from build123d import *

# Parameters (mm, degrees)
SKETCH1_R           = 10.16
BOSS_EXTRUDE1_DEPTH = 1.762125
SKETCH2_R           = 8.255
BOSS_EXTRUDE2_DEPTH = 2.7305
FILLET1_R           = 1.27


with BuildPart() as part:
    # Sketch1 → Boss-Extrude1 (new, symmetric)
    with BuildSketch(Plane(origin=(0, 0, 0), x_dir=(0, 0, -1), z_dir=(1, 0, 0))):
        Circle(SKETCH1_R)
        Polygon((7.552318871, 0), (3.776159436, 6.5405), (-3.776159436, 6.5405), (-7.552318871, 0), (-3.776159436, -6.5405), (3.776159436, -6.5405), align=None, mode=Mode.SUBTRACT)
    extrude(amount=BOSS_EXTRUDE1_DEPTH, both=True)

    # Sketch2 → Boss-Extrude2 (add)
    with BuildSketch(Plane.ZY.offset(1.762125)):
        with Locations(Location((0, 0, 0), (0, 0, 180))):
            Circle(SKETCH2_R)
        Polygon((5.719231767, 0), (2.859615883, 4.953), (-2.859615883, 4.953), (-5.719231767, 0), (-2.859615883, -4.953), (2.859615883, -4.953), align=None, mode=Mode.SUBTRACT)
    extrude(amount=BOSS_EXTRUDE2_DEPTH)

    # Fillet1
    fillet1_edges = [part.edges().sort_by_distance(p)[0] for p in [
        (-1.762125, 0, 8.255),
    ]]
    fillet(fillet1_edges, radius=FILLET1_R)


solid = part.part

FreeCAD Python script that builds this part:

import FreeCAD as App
import Part
import Sketcher
Q = App.Units.Quantity


def edges_at(feature, points):
    """Names of the edges that pass closest to the given points."""
    edges = feature.Shape.Edges
    near = lambda p: min(range(len(edges)), key=lambda i: edges[i].distToShape(Part.Vertex(*p))[0])
    return sorted({f"Edge{near(p) + 1}" for p in points})

doc = App.newDocument("Part")
body = doc.addObject("PartDesign::Body", "Body")

# Sketch on YZ plane
sketch1 = body.newObject("Sketcher::SketchObject", "Sketch")
sketch1.AttachmentSupport = (doc.getObject("YZ_Plane"), [""])
sketch1.MapMode = "FlatFace"
sketch1.addGeometry([
    Part.Circle(App.Vector(0, 0, 0), App.Vector(0, 0, 1), 10),  # 0
    Part.LineSegment(App.Vector(7, -4, 0), App.Vector(0, -8, 0)),  # 1
    Part.LineSegment(App.Vector(0, -8, 0), App.Vector(-7, -4, 0)),  # 2
    Part.LineSegment(App.Vector(-7, -4, 0), App.Vector(-7, 4, 0)),  # 3
    Part.LineSegment(App.Vector(-7, 4, 0), App.Vector(0, 8, 0)),  # 4
    Part.LineSegment(App.Vector(0, 8, 0), App.Vector(7, 4, 0)),  # 5
    Part.LineSegment(App.Vector(7, 4, 0), App.Vector(7, -4, 0)),  # 6
], False)
sketch1.addConstraint([
    Sketcher.Constraint("Coincident", 1, 2, 2, 1),
    Sketcher.Constraint("Coincident", 2, 2, 3, 1),
    Sketcher.Constraint("Coincident", 3, 2, 4, 1),
    Sketcher.Constraint("Coincident", 4, 2, 5, 1),
    Sketcher.Constraint("Coincident", 5, 2, 6, 1),
    Sketcher.Constraint("Coincident", 6, 2, 1, 1),
    Sketcher.Constraint("Vertical", 3),
    Sketcher.Constraint("Vertical", 6),
    Sketcher.Constraint("Coincident", 0, 3, -1, 1),
    Sketcher.Constraint("Symmetric", 1, 2, 4, 2, -1, 1),
    Sketcher.Constraint("Symmetric", 2, 2, 5, 2, -1, 1),
    Sketcher.Constraint("PointOnObject", 1, 2, -2),
    Sketcher.Constraint("Parallel", 1, 4),
    Sketcher.Constraint("Horizontal", 3, 2, 5, 2),
    Sketcher.Constraint("Diameter", 0, Q("0.8 in")),
    Sketcher.Constraint("Angle", 1, Q("-150 deg")),
    Sketcher.Constraint("DistanceX", 3, 2, 5, 2, Q("0.515 in")),
    Sketcher.Constraint("DistanceY", 3, 1, 3, 2, Q("7.552319 mm")),
])
pad1 = body.newObject("PartDesign::Pad", "Pad")
pad1.Profile = sketch1
pad1.Length = 3.52425
pad1.Midplane = True

# Sketch on YZ plane
sketch2 = body.newObject("Sketcher::SketchObject", "Sketch001")
sketch2.AttachmentSupport = (doc.getObject("YZ_Plane"), [""])
sketch2.MapMode = "FlatFace"
sketch2.AttachmentOffset = App.Placement(App.Vector(0, 0, -1.762125), App.Rotation())
sketch2.addGeometry([
    Part.Circle(App.Vector(0, 0, 0), App.Vector(0, 0, 1), 8),  # 0
    Part.LineSegment(App.Vector(5, 3, 0), App.Vector(0, 6, 0)),  # 1
    Part.LineSegment(App.Vector(0, 6, 0), App.Vector(-5, 3, 0)),  # 2
    Part.LineSegment(App.Vector(-5, 3, 0), App.Vector(-5, -3, 0)),  # 3
    Part.LineSegment(App.Vector(-5, -3, 0), App.Vector(0, -6, 0)),  # 4
    Part.LineSegment(App.Vector(0, -6, 0), App.Vector(5, -3, 0)),  # 5
    Part.LineSegment(App.Vector(5, -3, 0), App.Vector(5, 3, 0)),  # 6
], False)
sketch2.addConstraint([
    Sketcher.Constraint("Coincident", 1, 2, 2, 1),
    Sketcher.Constraint("Coincident", 2, 2, 3, 1),
    Sketcher.Constraint("Coincident", 3, 2, 4, 1),
    Sketcher.Constraint("Coincident", 4, 2, 5, 1),
    Sketcher.Constraint("Coincident", 5, 2, 6, 1),
    Sketcher.Constraint("Coincident", 6, 2, 1, 1),
    Sketcher.Constraint("Vertical", 3),
    Sketcher.Constraint("Vertical", 6),
    Sketcher.Constraint("Coincident", 0, 3, -1, 1),
    Sketcher.Constraint("Symmetric", 1, 2, 4, 2, -1, 1),
    Sketcher.Constraint("Symmetric", 2, 2, 5, 2, -1, 1),
    Sketcher.Constraint("PointOnObject", 1, 2, -2),
    Sketcher.Constraint("Parallel", 1, 4),
    Sketcher.Constraint("Horizontal", 3, 2, 5, 2),
    Sketcher.Constraint("Diameter", 0, Q("0.65 in")),
    Sketcher.Constraint("Angle", 1, Q("150 deg")),
    Sketcher.Constraint("DistanceX", 3, 2, 5, 2, Q("0.39 in")),
    Sketcher.Constraint("DistanceY", 3, 2, 3, 1, Q("5.719232 mm")),
])
pad2 = body.newObject("PartDesign::Pad", "Pad001")
pad2.Profile = sketch2
pad2.Length = Q("0.1075 in")
pad2.Reversed = True
doc.recompute()

fillet = body.newObject("PartDesign::Fillet", "Fillet")
fillet.Base = (pad2, edges_at(pad2, [(-1.762, 0, 8.255)]))
fillet.Radius = Q("0.05 in")

doc.recompute()
